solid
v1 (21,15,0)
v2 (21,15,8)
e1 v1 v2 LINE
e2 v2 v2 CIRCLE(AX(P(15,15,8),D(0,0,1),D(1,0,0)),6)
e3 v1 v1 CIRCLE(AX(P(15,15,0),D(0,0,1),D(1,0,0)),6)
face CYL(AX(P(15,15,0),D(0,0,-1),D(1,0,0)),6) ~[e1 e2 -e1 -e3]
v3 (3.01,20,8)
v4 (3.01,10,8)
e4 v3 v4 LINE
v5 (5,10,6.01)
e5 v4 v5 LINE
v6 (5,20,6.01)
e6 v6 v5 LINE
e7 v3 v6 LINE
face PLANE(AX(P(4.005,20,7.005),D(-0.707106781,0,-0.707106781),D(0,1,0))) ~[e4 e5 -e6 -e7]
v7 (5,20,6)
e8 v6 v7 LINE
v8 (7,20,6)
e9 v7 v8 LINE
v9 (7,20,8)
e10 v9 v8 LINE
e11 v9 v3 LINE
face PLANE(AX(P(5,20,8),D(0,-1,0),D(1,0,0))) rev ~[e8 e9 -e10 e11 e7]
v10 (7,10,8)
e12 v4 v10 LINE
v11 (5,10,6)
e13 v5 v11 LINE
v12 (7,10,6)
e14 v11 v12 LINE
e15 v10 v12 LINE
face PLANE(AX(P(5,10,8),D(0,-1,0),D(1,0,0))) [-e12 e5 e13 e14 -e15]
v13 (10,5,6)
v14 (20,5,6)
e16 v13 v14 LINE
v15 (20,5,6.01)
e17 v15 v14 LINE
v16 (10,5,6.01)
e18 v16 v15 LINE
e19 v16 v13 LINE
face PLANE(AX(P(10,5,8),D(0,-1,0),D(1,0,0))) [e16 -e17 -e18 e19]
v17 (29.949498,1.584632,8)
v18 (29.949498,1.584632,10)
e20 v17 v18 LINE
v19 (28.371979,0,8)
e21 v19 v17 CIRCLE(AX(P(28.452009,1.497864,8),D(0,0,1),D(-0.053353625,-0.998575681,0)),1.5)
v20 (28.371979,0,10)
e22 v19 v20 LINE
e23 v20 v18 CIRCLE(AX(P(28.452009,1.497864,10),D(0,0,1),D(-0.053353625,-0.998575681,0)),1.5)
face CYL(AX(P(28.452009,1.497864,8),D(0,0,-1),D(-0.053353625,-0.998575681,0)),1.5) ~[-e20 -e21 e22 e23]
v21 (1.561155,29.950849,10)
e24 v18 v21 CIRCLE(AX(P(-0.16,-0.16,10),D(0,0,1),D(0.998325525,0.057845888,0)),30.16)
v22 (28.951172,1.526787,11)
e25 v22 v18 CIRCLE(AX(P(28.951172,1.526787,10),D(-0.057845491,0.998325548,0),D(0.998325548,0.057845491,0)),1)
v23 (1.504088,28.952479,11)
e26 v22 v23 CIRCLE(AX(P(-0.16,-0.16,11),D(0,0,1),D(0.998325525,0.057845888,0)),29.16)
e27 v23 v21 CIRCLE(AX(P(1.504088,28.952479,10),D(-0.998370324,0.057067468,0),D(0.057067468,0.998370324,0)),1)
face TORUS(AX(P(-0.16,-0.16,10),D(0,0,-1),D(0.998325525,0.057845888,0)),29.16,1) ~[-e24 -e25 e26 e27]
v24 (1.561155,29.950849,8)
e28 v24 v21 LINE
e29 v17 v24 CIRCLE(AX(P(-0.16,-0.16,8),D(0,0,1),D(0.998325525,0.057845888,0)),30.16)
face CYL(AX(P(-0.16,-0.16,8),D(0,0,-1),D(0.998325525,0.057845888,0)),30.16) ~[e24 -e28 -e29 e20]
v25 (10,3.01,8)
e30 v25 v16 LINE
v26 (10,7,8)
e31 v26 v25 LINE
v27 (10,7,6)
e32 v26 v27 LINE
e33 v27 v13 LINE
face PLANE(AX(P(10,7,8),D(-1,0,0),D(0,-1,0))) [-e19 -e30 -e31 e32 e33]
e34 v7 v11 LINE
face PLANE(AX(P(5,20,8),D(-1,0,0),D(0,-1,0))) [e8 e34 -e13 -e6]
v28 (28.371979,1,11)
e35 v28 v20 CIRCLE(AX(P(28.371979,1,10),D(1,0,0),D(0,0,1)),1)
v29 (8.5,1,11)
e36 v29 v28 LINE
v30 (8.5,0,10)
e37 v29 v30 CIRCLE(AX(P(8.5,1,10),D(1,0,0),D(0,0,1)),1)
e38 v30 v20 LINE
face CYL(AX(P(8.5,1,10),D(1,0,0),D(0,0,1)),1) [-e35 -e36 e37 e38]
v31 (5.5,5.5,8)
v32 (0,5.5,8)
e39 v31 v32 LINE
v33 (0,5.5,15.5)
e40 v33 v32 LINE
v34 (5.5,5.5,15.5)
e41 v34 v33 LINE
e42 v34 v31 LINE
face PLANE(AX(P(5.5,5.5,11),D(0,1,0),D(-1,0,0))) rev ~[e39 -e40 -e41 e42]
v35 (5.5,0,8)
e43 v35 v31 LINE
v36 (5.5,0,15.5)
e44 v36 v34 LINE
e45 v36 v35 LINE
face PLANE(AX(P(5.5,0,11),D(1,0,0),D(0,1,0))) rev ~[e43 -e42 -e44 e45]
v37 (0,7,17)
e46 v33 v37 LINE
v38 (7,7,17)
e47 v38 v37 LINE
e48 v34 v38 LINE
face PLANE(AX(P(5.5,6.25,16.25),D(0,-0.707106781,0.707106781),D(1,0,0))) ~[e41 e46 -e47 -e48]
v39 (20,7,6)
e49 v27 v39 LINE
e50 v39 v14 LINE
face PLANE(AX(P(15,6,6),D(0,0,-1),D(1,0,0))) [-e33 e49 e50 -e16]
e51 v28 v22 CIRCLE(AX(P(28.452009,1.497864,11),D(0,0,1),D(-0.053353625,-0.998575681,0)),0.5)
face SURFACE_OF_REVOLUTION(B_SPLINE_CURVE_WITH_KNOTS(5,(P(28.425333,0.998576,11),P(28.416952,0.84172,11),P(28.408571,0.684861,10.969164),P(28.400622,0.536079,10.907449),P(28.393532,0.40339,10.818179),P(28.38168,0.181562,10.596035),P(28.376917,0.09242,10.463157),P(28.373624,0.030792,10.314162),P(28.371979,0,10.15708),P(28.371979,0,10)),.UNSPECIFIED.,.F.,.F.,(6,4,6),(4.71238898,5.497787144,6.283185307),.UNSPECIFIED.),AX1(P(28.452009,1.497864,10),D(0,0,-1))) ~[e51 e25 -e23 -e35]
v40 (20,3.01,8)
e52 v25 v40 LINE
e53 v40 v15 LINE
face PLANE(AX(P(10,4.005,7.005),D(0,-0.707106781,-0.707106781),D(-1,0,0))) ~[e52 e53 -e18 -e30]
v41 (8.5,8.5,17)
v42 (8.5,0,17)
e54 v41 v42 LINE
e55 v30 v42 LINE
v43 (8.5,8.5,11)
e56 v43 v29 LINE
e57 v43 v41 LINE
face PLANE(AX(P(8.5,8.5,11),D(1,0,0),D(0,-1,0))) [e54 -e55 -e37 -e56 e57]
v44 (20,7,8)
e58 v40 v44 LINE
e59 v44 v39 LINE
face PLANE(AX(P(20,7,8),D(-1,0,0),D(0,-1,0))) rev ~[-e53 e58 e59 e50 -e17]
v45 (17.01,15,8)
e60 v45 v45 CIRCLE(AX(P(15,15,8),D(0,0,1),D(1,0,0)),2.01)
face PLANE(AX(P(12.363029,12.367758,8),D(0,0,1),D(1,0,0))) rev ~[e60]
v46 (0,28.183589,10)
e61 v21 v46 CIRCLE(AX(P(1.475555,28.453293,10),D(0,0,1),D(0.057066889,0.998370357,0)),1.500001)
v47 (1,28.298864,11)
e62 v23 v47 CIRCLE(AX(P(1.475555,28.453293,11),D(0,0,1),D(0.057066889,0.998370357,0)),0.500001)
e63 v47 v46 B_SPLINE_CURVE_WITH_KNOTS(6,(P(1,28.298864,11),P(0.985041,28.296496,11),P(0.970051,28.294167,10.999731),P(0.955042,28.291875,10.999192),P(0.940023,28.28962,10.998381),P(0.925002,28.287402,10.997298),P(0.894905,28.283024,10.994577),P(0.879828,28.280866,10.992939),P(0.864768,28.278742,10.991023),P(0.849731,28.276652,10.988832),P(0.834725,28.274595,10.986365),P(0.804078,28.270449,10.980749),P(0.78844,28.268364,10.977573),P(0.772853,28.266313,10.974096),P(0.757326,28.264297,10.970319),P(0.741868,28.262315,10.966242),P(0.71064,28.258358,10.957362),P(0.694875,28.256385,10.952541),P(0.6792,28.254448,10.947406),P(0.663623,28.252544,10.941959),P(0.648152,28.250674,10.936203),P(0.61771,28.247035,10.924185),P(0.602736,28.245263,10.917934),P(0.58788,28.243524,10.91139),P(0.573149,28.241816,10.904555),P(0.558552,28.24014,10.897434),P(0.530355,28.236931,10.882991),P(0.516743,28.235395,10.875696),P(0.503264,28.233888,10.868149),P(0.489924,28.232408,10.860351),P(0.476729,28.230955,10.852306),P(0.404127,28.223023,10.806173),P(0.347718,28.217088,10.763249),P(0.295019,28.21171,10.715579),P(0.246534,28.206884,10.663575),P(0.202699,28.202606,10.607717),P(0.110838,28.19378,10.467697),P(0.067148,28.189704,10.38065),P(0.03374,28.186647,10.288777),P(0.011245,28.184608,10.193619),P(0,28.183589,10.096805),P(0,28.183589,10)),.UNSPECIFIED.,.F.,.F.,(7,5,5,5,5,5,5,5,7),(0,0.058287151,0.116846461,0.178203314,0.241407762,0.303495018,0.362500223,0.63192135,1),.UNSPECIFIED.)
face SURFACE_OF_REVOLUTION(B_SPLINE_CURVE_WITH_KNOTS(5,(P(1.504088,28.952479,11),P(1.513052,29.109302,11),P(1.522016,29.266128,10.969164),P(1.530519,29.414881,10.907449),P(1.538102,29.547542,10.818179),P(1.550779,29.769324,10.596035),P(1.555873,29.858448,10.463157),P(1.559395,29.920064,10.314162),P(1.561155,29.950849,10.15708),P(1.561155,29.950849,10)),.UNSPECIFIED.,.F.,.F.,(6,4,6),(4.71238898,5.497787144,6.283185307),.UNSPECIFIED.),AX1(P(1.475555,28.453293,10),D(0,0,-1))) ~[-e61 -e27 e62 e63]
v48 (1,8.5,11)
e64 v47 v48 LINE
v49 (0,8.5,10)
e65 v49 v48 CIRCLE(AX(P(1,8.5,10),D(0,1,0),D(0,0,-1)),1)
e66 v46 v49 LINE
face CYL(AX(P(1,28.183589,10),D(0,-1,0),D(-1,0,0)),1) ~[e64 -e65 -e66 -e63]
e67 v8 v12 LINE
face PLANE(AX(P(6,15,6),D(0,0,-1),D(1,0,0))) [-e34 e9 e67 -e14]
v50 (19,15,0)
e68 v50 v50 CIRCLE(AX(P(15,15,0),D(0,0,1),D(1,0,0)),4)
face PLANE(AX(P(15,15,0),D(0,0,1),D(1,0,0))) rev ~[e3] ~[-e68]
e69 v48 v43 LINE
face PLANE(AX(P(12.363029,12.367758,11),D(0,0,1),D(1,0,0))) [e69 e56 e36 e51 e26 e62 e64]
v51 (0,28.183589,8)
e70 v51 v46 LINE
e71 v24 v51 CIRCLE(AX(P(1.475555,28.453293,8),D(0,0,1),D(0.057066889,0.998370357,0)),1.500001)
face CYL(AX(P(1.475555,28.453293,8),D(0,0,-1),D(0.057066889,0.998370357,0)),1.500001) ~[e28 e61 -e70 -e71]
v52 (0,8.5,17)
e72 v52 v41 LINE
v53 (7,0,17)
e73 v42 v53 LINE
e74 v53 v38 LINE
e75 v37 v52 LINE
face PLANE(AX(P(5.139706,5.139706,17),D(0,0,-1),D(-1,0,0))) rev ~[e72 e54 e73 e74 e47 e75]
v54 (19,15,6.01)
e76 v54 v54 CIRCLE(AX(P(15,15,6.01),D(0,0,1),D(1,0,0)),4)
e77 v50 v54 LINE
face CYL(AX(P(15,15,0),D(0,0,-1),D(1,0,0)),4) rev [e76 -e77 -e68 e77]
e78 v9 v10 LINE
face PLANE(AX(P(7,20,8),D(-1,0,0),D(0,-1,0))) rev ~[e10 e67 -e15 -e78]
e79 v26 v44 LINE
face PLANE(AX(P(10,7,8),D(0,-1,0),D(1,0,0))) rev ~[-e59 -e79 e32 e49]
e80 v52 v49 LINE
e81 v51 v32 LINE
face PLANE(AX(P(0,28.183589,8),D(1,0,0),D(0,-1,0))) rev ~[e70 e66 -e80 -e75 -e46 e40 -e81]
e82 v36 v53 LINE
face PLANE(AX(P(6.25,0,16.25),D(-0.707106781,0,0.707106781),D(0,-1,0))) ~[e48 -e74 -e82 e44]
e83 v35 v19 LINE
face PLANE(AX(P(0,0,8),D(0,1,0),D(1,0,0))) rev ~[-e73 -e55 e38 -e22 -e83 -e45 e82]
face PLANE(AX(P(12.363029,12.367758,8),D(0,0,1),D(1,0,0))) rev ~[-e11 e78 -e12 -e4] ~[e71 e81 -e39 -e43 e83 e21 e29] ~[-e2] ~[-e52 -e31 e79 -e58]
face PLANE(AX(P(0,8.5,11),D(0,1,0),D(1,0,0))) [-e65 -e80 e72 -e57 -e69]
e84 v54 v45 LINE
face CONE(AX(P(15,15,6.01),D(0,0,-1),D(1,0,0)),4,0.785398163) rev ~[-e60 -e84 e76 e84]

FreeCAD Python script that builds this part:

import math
import FreeCAD as App
import Part
import Sketcher


def edges_at(feature, points):
    """Names of the edges that pass closest to the given points."""
    edges = feature.Shape.Edges
    near = lambda p: min(range(len(edges)), key=lambda i: edges[i].distToShape(Part.Vertex(*p))[0])
    return sorted({f"Edge{near(p) + 1}" for p in points})


def add_polygon(sketch, points):
    """Adds a closed chain of lines whose ends are joined by coincident constraints."""
    first, n = sketch.GeometryCount, len(points)
    for a, b in zip(points, points[1:] + points[:1]):
        sketch.addGeometry(Part.LineSegment(App.Vector(*a, 0), App.Vector(*b, 0)), False)
    for i in range(n):
        sketch.addConstraint(Sketcher.Constraint("Coincident", first + i, 2, first + (i + 1) % n, 1))

doc = App.newDocument("Part")
body = doc.addObject("PartDesign::Body", "Body")

# Sketch on XY plane
sketch1 = body.newObject("Sketcher::SketchObject", "Sketch")
sketch1.AttachmentSupport = (doc.getObject("XY_Plane"), [""])
sketch1.MapMode = "FlatFace"
sketch1.addGeometry([
    Part.Circle(App.Vector(15, 15, 0), App.Vector(0, 0, 1), 6),
    Part.Circle(App.Vector(15, 15, 0), App.Vector(0, 0, 1), 4),
], False)
sketch1.addConstraint([
    Sketcher.Constraint("Coincident", 1, 3, 0, 3),
    Sketcher.Constraint("Diameter", 0, 12.0),
    Sketcher.Constraint("Diameter", 1, 8.0),
    Sketcher.Constraint("DistanceX", -1, 1, 0, 3, 15.0),
    Sketcher.Constraint("DistanceY", -1, 1, 0, 3, 15.0),
])
pad1 = body.newObject("PartDesign::Pad", "Pad")
pad1.Profile = sketch1
pad1.Length = 8

# Sketch on XY plane
sketch2 = body.newObject("Sketcher::SketchObject", "Sketch001")
sketch2.AttachmentSupport = (doc.getObject("XY_Plane"), [""])
sketch2.MapMode = "FlatFace"
sketch2.AttachmentOffset = App.Placement(App.Vector(0, 0, 8), App.Rotation())
sketch2.addGeometry([
    Part.LineSegment(App.Vector(0, 28.2, 0), App.Vector(0, 0, 0)),  # 0
    Part.LineSegment(App.Vector(0, 0, 0), App.Vector(28.4, 0, 0)),  # 1
    Part.ArcOfCircle(Part.Circle(App.Vector(28.5, 1.5, 0), App.Vector(0, 0, 1), 1.5), math.radians(-93), math.radians(3)),  # 2
    Part.ArcOfCircle(Part.Circle(App.Vector(-0.2, -0.2, 0), App.Vector(0, 0, 1), 30.2), math.radians(3), math.radians(87)),  # 3
    Part.ArcOfCircle(Part.Circle(App.Vector(1.5, 28.5, 0), App.Vector(0, 0, 1), 1.5), math.radians(87), math.radians(190)),  # 4
], False)
sketch2.addConstraint([
    Sketcher.Constraint("Coincident", 0, 2, 1, 1),
    Sketcher.Constraint("Coincident", 1, 2, 2, 1),
    Sketcher.Constraint("Tangent", 2, 2, 3, 1),
    Sketcher.Constraint("Tangent", 3, 2, 4, 1),
    Sketcher.Constraint("Coincident", 4, 2, 0, 1),
    Sketcher.Constraint("Vertical", 0),
    Sketcher.Constraint("Horizontal", 1),
    Sketcher.Constraint("Coincident", 0, 2, -1, 1),
    Sketcher.Constraint("Equal", 2, 4),
    Sketcher.Constraint("Radius", 2, 1.5),
    Sketcher.Constraint("Radius", 3, 30.16),
    Sketcher.Constraint("DistanceX", 3, 3, -1, 1, 0.16),
    Sketcher.Constraint("DistanceY", 3, 3, -1, 1, 0.16),
    Sketcher.Constraint("DistanceX", 1, 1, 1, 2, 28.371979),
    Sketcher.Constraint("DistanceY", 0, 2, 0, 1, 28.183589),
])
pad2 = body.newObject("PartDesign::Pad", "Pad001")
pad2.Profile = sketch2
pad2.Length = 3

# Sketch on XY plane
sketch3 = body.newObject("Sketcher::SketchObject", "Sketch002")
sketch3.AttachmentSupport = (doc.getObject("XY_Plane"), [""])
sketch3.MapMode = "FlatFace"
sketch3.AttachmentOffset = App.Placement(App.Vector(0, 0, 8), App.Rotation())
add_polygon(sketch3, [(5, 10), (5, 20), (7, 20), (7, 10)])  # lines 0-3
add_polygon(sketch3, [(10, 5), (10, 7), (20, 7), (20, 5)])  # lines 4-7
sketch3.addConstraint([
    Sketcher.Constraint("Vertical", 0),
    Sketcher.Constraint("Horizontal", 1),
    Sketcher.Constraint("Vertical", 2),
    Sketcher.Constraint("Horizontal", 3),
    Sketcher.Constraint("Vertical", 4),
    Sketcher.Constraint("Horizontal", 5),
    Sketcher.Constraint("Vertical", 6),
    Sketcher.Constraint("Horizontal", 7),
    Sketcher.Constraint("Equal", 7, 0),
    Sketcher.Constraint("Equal", 3, 4),
    Sketcher.Constraint("DistanceX", 1, 1, 1, 2, 2.0),
    Sketcher.Constraint("DistanceX", 5, 1, 5, 2, 10.0),
    Sketcher.Constraint("DistanceX", -1, 1, 0, 2, 5.0),
    Sketcher.Constraint("DistanceY", -1, 1, 0, 2, 20.0),
    Sketcher.Constraint("DistanceX", -1, 1, 4, 2, 10.0),
    Sketcher.Constraint("DistanceY", -1, 1, 4, 2, 7.0),
])
pad3 = body.newObject("PartDesign::Pad", "Pad002")
pad3.Profile = sketch3
pad3.Length = 2
pad3.Reversed = True
doc.recompute()

chamfer = body.newObject("PartDesign::Chamfer", "Chamfer")
chamfer.Base = (pad3, edges_at(pad3, [(11, 15, 8)]))
chamfer.Size = 1.99
doc.recompute()

chamfer2 = body.newObject("PartDesign::Chamfer", "Chamfer001")
chamfer2.Base = (chamfer, edges_at(chamfer, [(5, 15, 8), (15, 5, 8)]))
chamfer2.Size = 1.99

# Sketch on XY plane
sketch4 = body.newObject("Sketcher::SketchObject", "Sketch003")
sketch4.AttachmentSupport = (doc.getObject("XY_Plane"), [""])
sketch4.MapMode = "FlatFace"
sketch4.AttachmentOffset = App.Placement(App.Vector(0, 0, 11), App.Rotation())
add_polygon(sketch4, [(8.5, 8.5), (0, 8.5), (0, 5.5), (5.5, 5.5), (5.5, 0), (8.5, 0)])  # lines 0-5
sketch4.addConstraint([
    Sketcher.Constraint("Horizontal", 0),
    Sketcher.Constraint("Vertical", 1),
    Sketcher.Constraint("Horizontal", 2),
    Sketcher.Constraint("Vertical", 3),
    Sketcher.Constraint("Horizontal", 4),
    Sketcher.Constraint("Vertical", 5),
    Sketcher.Constraint("PointOnObject", 0, 2, -2),
    Sketcher.Constraint("PointOnObject", 3, 2, -1),
    Sketcher.Constraint("Equal", 4, 1),
    Sketcher.Constraint("Equal", 2, 3),
    Sketcher.Constraint("DistanceX", 4, 1, 4, 2, 3.0),
    Sketcher.Constraint("DistanceX", 0, 2, 0, 1, 8.5),
])
pad4 = body.newObject("PartDesign::Pad", "Pad003")
pad4.Profile = sketch4
pad4.Length = 6

# Sketch on XY plane
sketch5 = body.newObject("Sketcher::SketchObject", "Sketch004")
sketch5.AttachmentSupport = (doc.getObject("XY_Plane"), [""])
sketch5.MapMode = "FlatFace"
sketch5.AttachmentOffset = App.Placement(App.Vector(0, 0, 11), App.Rotation())
add_polygon(sketch5, [(0, 0), (6, 0), (6, 6), (0, 6)])  # lines 0-3
sketch5.addConstraint([
    Sketcher.Constraint("Horizontal", 0),
    Sketcher.Constraint("Vertical", 1),
    Sketcher.Constraint("Horizontal", 2),
    Sketcher.Constraint("Vertical", 3),
    Sketcher.Constraint("Coincident", 3, 2, -1, 1),
    Sketcher.Constraint("Equal", 2, 1),
    Sketcher.Constraint("DistanceX", 0, 1, 0, 2, 5.5),
])
pocket1 = body.newObject("PartDesign::Pocket", "Pocket")
pocket1.Profile = sketch5
pocket1.Type = "ThroughAll"
doc.recompute()

fillet = body.newObject("PartDesign::Fillet", "Fillet")
fillet.Base = (pocket1, edges_at(pocket1, [
    (29.515, 0.44, 11),
    (18.436, 0, 11),
    (21.158, 21.175, 11),
    (0.351, 29.446, 11),
    (0, 18.342, 11),
]))
fillet.Radius = 1
doc.recompute()

chamfer3 = body.newObject("PartDesign::Chamfer", "Chamfer002")
chamfer3.Base = (fillet, edges_at(fillet, [(2.75, 5.5, 17), (5.5, 2.75, 17)]))
chamfer3.Size = 1.5

doc.recompute()
